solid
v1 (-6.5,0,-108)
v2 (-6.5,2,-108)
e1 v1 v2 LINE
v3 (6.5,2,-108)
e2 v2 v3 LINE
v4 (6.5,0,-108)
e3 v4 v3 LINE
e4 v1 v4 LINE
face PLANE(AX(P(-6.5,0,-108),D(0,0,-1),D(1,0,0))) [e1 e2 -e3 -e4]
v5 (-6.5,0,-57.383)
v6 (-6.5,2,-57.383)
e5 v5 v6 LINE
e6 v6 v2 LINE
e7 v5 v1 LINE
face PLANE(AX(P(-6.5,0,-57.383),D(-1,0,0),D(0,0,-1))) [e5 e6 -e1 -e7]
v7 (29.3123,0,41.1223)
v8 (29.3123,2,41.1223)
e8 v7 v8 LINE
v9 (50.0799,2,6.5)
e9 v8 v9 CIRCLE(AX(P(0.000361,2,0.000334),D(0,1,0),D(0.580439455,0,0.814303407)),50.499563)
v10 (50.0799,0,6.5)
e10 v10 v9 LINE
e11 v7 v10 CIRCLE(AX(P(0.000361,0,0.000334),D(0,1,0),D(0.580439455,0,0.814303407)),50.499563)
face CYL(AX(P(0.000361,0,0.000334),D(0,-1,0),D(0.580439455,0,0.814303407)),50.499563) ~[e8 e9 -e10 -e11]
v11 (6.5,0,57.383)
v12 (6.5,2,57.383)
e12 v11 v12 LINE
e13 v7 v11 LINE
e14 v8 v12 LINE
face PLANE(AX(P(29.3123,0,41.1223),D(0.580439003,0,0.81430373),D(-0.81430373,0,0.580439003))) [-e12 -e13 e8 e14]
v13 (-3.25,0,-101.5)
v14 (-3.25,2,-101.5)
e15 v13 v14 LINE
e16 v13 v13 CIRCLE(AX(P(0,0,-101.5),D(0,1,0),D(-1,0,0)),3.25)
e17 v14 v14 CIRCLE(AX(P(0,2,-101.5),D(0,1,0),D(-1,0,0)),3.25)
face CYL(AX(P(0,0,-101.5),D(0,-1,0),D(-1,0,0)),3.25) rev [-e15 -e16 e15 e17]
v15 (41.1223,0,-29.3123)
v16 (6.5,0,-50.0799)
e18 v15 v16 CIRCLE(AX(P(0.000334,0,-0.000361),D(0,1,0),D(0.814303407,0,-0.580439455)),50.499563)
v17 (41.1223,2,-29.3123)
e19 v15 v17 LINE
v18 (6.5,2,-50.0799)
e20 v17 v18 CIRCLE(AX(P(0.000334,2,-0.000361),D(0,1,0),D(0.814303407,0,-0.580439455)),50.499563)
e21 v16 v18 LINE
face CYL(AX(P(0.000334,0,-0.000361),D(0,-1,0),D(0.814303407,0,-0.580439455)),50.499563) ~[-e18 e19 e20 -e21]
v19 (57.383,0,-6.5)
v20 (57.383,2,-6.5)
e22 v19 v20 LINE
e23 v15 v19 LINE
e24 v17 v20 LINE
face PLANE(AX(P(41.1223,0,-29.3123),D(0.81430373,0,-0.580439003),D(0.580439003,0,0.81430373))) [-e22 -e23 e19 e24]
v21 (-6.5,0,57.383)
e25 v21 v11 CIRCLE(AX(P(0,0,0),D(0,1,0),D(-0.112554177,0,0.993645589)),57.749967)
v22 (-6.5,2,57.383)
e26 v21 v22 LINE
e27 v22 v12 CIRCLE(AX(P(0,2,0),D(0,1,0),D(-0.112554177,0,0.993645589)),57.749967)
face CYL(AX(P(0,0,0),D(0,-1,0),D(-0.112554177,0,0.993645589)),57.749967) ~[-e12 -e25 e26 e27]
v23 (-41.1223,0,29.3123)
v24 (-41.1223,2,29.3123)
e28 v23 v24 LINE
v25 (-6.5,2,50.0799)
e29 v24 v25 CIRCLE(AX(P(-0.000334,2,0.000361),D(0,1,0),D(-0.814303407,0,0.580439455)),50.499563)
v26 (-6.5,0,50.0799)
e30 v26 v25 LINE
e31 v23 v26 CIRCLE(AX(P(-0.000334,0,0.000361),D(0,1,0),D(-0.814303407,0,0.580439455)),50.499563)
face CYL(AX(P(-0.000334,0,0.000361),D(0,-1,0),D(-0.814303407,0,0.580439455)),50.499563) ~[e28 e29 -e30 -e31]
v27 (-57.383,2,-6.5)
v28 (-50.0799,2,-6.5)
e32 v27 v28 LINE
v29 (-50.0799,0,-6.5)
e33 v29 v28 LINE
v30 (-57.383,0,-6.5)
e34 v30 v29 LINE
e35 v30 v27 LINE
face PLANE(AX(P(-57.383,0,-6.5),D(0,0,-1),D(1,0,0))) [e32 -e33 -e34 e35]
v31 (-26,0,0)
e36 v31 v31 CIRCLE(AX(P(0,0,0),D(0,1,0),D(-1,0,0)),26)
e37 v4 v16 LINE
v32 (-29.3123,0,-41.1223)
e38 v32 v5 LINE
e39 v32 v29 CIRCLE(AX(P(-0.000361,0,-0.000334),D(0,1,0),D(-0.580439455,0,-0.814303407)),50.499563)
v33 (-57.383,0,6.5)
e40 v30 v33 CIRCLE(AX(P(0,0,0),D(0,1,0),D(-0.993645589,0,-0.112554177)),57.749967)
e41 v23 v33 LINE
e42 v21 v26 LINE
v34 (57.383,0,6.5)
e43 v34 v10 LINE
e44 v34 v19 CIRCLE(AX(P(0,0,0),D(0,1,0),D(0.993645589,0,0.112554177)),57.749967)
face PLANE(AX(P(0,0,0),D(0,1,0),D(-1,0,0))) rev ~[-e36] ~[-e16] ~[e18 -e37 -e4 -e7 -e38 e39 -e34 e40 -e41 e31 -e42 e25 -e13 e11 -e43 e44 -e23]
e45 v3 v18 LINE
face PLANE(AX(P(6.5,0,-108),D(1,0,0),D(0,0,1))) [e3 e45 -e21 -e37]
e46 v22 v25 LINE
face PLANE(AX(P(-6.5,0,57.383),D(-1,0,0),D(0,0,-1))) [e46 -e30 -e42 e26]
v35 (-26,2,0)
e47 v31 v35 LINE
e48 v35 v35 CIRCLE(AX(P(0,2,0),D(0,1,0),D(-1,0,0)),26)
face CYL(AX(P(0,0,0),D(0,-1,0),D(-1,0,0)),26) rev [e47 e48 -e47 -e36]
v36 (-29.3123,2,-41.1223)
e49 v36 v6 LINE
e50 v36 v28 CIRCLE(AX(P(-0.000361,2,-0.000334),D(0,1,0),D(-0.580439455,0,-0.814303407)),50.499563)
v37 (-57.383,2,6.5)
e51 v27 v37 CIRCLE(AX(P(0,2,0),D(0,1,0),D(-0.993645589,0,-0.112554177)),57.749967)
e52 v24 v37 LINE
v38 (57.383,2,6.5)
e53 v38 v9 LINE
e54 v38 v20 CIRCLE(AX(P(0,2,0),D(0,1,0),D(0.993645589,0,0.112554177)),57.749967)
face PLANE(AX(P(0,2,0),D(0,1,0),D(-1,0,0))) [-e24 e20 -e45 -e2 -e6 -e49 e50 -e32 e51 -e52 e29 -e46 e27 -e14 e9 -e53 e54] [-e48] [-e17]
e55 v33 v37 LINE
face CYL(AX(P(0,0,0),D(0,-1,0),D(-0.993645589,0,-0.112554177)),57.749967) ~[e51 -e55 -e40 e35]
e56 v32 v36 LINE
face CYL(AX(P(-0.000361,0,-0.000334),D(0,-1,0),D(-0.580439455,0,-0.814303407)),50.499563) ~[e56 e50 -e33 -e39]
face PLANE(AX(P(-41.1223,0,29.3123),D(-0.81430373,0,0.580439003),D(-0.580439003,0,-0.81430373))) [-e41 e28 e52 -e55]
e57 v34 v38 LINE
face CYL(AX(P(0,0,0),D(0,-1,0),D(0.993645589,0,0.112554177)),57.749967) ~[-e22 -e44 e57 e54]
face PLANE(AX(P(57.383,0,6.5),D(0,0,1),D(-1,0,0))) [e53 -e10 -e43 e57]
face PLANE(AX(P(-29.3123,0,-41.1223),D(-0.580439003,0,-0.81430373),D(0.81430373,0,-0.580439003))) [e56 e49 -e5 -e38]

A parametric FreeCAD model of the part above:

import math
import FreeCAD as App
import Part
import Sketcher
Q = App.Units.Quantity

doc = App.newDocument("Part")
params = doc.addObject("Spreadsheet::Sheet", "Params")
for row, (alias, value) in enumerate([
    ("sketch1_diameter", "52 mm"),
    ("sketch1_diameter2", "6.5 mm"),
    ("sketch1_radius", "50.5 mm"),
    ("sketch1_width", "13 mm"),
    ("sketch1_radius2", "57.75 mm"),
    ("pad1_length", "2 mm"),
], start=1):
    params.set(f"A{row}", alias)
    params.set(f"B{row}", "=" + value)
    params.setAlias(f"B{row}", alias)

body = doc.addObject("PartDesign::Body", "Body")

# Sketch on XZ plane
sketch1 = body.newObject("Sketcher::SketchObject", "Sketch")
sketch1.AttachmentSupport = (doc.getObject("XZ_Plane"), [""])
sketch1.MapMode = "FlatFace"
sketch1.addGeometry(Part.ArcOfCircle(Part.Circle(App.Vector(0, 0, 0), App.Vector(0, 0, 1), 50.5), math.radians(-83), math.radians(-35)), False)
sketch1.addGeometry(Part.LineSegment(App.Vector(6.5, -50.1, 0), App.Vector(6.5, -108, 0)), False)
sketch1.addGeometry(Part.LineSegment(App.Vector(6.5, -108, 0), App.Vector(-6.5, -108, 0)), False)
sketch1.addGeometry(Part.LineSegment(App.Vector(-6.5, -108, 0), App.Vector(-6.5, -57.4, 0)), False)
sketch1.addGeometry(Part.LineSegment(App.Vector(-6.5, -57.4, 0), App.Vector(-29.3, -41.1, 0)), False)
sketch1.addGeometry(Part.ArcOfCircle(Part.Circle(App.Vector(0, 0, 0), App.Vector(0, 0, 1), 50.5), math.radians(-173), math.radians(-125)), False)
sketch1.addGeometry(Part.LineSegment(App.Vector(-50.1, -6.5, 0), App.Vector(-57.4, -6.5, 0)), False)
sketch1.addGeometry(Part.ArcOfCircle(Part.Circle(App.Vector(0, 0, 0), App.Vector(0, 0, 1), 57.7), math.radians(173.54), math.radians(186.46)), False)
sketch1.addGeometry(Part.LineSegment(App.Vector(-57.4, 6.5, 0), App.Vector(-41.1, 29.3, 0)), False)
sketch1.addGeometry(Part.ArcOfCircle(Part.Circle(App.Vector(0, 0, 0), App.Vector(0, 0, 1), 50.5), math.radians(97), math.radians(145)), False)
sketch1.addGeometry(Part.LineSegment(App.Vector(-6.5, 50.1, 0), App.Vector(-6.5, 57.4, 0)), False)
sketch1.addGeometry(Part.ArcOfCircle(Part.Circle(App.Vector(0, 0, 0), App.Vector(0, 0, 1), 57.7), math.radians(83.54), math.radians(96.46)), False)
sketch1.addGeometry(Part.LineSegment(App.Vector(6.5, 57.4, 0), App.Vector(29.3, 41.1, 0)), False)
sketch1.addGeometry(Part.ArcOfCircle(Part.Circle(App.Vector(0, 0, 0), App.Vector(0, 0, 1), 50.5), math.radians(7), math.radians(55)), False)
sketch1.addGeometry(Part.LineSegment(App.Vector(50.1, 6.5, 0), App.Vector(57.4, 6.5, 0)), False)
sketch1.addGeometry(Part.ArcOfCircle(Part.Circle(App.Vector(0, 0, 0), App.Vector(0, 0, 1), 57.7), math.radians(-6.46), math.radians(6.46)), False)
sketch1.addGeometry(Part.LineSegment(App.Vector(57.4, -6.5, 0), App.Vector(41.1, -29.3, 0)), False)
sketch1.addGeometry(Part.Circle(App.Vector(0, 0, 0), App.Vector(0, 0, 1), 26), False)
sketch1.addGeometry(Part.Circle(App.Vector(0, -101.5, 0), App.Vector(0, 0, 1), 3.2), False)
sketch1.addConstraint(Sketcher.Constraint("Coincident", 0, 1, 1, 1))
sketch1.addConstraint(Sketcher.Constraint("Coincident", 1, 2, 2, 1))
sketch1.addConstraint(Sketcher.Constraint("Coincident", 2, 2, 3, 1))
sketch1.addConstraint(Sketcher.Constraint("Coincident", 3, 2, 4, 1))
sketch1.addConstraint(Sketcher.Constraint("Tangent", 4, 2, 5, 2))
sketch1.addConstraint(Sketcher.Constraint("Coincident", 5, 1, 6, 1))
sketch1.addConstraint(Sketcher.Constraint("Coincident", 6, 2, 7, 2))
sketch1.addConstraint(Sketcher.Constraint("Coincident", 7, 1, 8, 1))
sketch1.addConstraint(Sketcher.Constraint("Tangent", 8, 2, 9, 2))
sketch1.addConstraint(Sketcher.Constraint("Coincident", 9, 1, 10, 1))
sketch1.addConstraint(Sketcher.Constraint("Coincident", 10, 2, 11, 2))
sketch1.addConstraint(Sketcher.Constraint("Coincident", 11, 1, 12, 1))
sketch1.addConstraint(Sketcher.Constraint("Tangent", 12, 2, 13, 2))
sketch1.addConstraint(Sketcher.Constraint("Coincident", 13, 1, 14, 1))
sketch1.addConstraint(Sketcher.Constraint("Coincident", 14, 2, 15, 2))
sketch1.addConstraint(Sketcher.Constraint("Coincident", 15, 1, 16, 1))
sketch1.addConstraint(Sketcher.Constraint("Tangent", 16, 2, 0, 2))
sketch1.addConstraint(Sketcher.Constraint("Vertical", 1))
sketch1.addConstraint(Sketcher.Constraint("Horizontal", 2))
sketch1.addConstraint(Sketcher.Constraint("Vertical", 3))
sketch1.addConstraint(Sketcher.Constraint("Horizontal", 6))
sketch1.addConstraint(Sketcher.Constraint("Vertical", 10))
sketch1.addConstraint(Sketcher.Constraint("Horizontal", 14))
sketch1.addConstraint(Sketcher.Constraint("Coincident", 0, 3, -1, 1))
sketch1.addConstraint(Sketcher.Constraint("Coincident", 5, 3, -1, 1))
sketch1.addConstraint(Sketcher.Constraint("Coincident", 7, 3, -1, 1))
sketch1.addConstraint(Sketcher.Constraint("Coincident", 9, 3, -1, 1))
sketch1.addConstraint(Sketcher.Constraint("Coincident", 11, 3, -1, 1))
sketch1.addConstraint(Sketcher.Constraint("Coincident", 13, 3, -1, 1))
sketch1.addConstraint(Sketcher.Constraint("Coincident", 15, 3, -1, 1))
sketch1.addConstraint(Sketcher.Constraint("Coincident", 17, 3, -1, 1))
sketch1.addConstraint(Sketcher.Constraint("Equal", 0, 5))
sketch1.addConstraint(Sketcher.Constraint("Equal", 5, 9))
sketch1.addConstraint(Sketcher.Constraint("Equal", 7, 11))
sketch1.addConstraint(Sketcher.Constraint("Equal", 9, 13))
sketch1.addConstraint(Sketcher.Constraint("Equal", 11, 15))
sketch1.addConstraint(Sketcher.Constraint("Symmetric", 3, 2, 11, 1, -1, 1))
sketch1.addConstraint(Sketcher.Constraint("PointOnObject", 18, 3, -2))
sketch1.addConstraint(Sketcher.Constraint("Perpendicular", 4, 8))
sketch1.addConstraint(Sketcher.Constraint("Perpendicular", 12, 16))
sketch1.addConstraint(Sketcher.Constraint("Horizontal", 10, 2, 11, 1))
sketch1.addConstraint(Sketcher.Constraint("Horizontal", 7, 1, 13, 1))
sketch1.addConstraint(Sketcher.Constraint("Horizontal", 6, 2, 15, 1))
sketch1.addConstraint(Sketcher.Constraint("Vertical", 1, 2, 11, 1))
sketch1.addConstraint(Sketcher.Constraint("Diameter", 17, Q("52 mm")))
sketch1.addConstraint(Sketcher.Constraint("Diameter", 18, Q("6.5 mm")))
sketch1.addConstraint(Sketcher.Constraint("Radius", 0, Q("50.5 mm")))
sketch1.addConstraint(Sketcher.Constraint("DistanceX", 2, 2, 2, 1, Q("13 mm")))
sketch1.addConstraint(Sketcher.Constraint("Radius", 7, Q("57.75 mm")))
sketch1.addConstraint(Sketcher.Constraint("DistanceY", 1, 2, -1, 1, Q("108 mm")))
sketch1.addConstraint(Sketcher.Constraint("DistanceY", 1, 2, 18, 3, Q("6.5 mm")))
sketch1.setExpression("Constraints[44]", "Params.sketch1_diameter")
sketch1.setExpression("Constraints[45]", "Params.sketch1_diameter2")
sketch1.setExpression("Constraints[46]", "Params.sketch1_radius")
sketch1.setExpression("Constraints[47]", "Params.sketch1_width")
sketch1.setExpression("Constraints[48]", "Params.sketch1_radius2")
pad1 = body.newObject("PartDesign::Pad", "Pad")
pad1.Profile = sketch1
pad1.setExpression("Length", "Params.pad1_length")
pad1.Reversed = True

doc.recompute()
